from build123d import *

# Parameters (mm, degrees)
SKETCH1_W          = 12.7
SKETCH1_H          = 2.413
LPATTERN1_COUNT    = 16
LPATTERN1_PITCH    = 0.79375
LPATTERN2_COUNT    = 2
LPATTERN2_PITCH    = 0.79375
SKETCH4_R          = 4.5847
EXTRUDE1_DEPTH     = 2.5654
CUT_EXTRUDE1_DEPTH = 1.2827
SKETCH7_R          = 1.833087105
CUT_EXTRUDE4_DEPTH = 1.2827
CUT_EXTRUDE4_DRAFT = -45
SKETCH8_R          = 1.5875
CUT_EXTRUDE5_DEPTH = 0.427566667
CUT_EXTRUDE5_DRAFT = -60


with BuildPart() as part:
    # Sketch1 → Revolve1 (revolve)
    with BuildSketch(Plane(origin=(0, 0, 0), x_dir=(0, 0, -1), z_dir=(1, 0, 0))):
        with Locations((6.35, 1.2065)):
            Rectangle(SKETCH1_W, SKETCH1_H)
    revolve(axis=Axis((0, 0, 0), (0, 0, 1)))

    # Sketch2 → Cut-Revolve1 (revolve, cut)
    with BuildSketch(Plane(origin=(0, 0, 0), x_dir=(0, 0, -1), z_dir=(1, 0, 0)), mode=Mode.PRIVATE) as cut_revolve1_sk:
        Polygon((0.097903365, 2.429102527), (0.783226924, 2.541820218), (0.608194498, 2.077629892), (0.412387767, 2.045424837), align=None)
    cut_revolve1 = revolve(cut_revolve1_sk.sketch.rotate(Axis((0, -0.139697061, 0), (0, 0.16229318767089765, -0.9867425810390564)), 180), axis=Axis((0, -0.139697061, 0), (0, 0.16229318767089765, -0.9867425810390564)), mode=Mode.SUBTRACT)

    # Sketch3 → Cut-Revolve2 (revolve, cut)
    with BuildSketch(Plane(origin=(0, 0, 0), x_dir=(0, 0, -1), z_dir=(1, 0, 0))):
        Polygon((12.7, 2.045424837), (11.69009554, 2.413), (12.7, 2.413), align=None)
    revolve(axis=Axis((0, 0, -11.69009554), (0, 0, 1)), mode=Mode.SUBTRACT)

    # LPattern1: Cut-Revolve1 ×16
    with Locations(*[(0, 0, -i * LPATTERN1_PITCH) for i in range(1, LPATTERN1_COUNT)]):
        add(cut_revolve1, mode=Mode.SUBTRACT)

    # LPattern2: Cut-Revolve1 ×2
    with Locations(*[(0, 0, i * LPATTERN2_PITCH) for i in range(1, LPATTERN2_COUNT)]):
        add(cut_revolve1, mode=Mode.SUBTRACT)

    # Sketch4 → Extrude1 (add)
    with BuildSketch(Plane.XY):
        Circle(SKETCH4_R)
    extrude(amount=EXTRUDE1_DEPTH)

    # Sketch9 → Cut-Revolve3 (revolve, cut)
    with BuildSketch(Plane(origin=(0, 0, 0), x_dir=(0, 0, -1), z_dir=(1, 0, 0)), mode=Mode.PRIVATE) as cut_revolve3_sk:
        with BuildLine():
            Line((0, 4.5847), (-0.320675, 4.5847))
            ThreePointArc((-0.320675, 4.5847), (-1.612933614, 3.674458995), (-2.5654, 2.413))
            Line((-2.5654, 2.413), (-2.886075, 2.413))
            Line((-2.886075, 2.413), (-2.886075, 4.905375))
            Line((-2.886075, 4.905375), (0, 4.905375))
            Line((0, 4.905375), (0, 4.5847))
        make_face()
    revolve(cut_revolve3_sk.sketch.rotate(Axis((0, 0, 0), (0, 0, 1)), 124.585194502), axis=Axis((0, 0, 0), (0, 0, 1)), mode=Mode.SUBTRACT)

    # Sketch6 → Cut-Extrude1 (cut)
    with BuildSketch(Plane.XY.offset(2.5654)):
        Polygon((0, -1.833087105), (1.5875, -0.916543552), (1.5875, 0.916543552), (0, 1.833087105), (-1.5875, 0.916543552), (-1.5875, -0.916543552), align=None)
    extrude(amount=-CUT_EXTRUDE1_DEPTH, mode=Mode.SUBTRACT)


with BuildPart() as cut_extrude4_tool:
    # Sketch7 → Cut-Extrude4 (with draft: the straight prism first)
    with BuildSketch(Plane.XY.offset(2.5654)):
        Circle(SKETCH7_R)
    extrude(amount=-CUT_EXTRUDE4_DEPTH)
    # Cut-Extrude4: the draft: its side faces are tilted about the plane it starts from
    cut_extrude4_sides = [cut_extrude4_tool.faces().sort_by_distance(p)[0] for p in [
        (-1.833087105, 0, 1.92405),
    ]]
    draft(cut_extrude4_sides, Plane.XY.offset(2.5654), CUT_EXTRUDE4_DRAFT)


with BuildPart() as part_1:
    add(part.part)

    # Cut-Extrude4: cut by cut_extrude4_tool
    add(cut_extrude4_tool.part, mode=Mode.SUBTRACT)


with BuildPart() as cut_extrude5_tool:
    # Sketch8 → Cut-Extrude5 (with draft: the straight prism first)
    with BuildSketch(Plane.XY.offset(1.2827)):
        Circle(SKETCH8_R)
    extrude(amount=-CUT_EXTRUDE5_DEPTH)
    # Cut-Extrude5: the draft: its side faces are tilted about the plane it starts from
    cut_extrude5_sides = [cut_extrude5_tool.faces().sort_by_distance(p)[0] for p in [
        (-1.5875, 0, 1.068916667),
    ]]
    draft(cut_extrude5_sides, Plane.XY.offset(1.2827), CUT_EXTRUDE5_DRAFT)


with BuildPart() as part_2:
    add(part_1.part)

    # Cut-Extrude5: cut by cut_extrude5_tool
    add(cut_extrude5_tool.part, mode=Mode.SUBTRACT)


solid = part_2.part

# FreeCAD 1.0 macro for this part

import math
import FreeCAD as App
import Part
import Sketcher
from FreeCAD import Vector
Q = App.Units.Quantity


def faces_at(feature, points):
    """Names of the faces that lie closest to the given points."""
    faces = feature.Shape.Faces
    near = lambda p: min(range(len(faces)), key=lambda i: faces[i].distToShape(Part.Vertex(*p))[0])
    return sorted({f"Face{near(p) + 1}" for p in points})


def add_polygon(sketch, points):
    """Adds a closed chain of lines whose ends are joined by coincident constraints."""
    first, n = sketch.GeometryCount, len(points)
    for a, b in zip(points, points[1:] + points[:1]):
        sketch.addGeometry(Part.LineSegment(App.Vector(*a, 0), App.Vector(*b, 0)), False)
    for i in range(n):
        sketch.addConstraint(Sketcher.Constraint("Coincident", first + i, 2, first + (i + 1) % n, 1))

doc = App.newDocument("Part")
body = doc.addObject("PartDesign::Body", "Body")

# Sketch on YZ plane
sketch1 = body.newObject("Sketcher::SketchObject", "Sketch")
sketch1.AttachmentSupport = (doc.getObject("YZ_Plane"), [""])
sketch1.MapMode = "FlatFace"
add_polygon(sketch1, [(2.4, 0), (0, 0), (0, -12.7), (2.4, -12.7)])  # lines 0-3
sketch1.addConstraint([
    Sketcher.Constraint("Horizontal", 0),
    Sketcher.Constraint("Vertical", 1),
    Sketcher.Constraint("Horizontal", 2),
    Sketcher.Constraint("Vertical", 3),
    Sketcher.Constraint("Coincident", 0, 2, -1, 1),
    Sketcher.Constraint("DistanceY", 1, 2, 1, 1, Q("0.5 in")),
    Sketcher.Constraint("DistanceX", 0, 2, 0, 1, Q("0.095 in")),
])
revolution = body.newObject("PartDesign::Revolution", "Revolution")
revolution.Profile = sketch1
revolution.ReferenceAxis = (sketch1, ["V_Axis"])
revolution.Angle = 360

# Sketch on YZ plane
sketch2 = body.newObject("Sketcher::SketchObject", "Sketch001")
sketch2.AttachmentSupport = (doc.getObject("YZ_Plane"), [""])
sketch2.MapMode = "FlatFace"
add_polygon(sketch2, [(2.54, -0.78), (2.43, -0.1), (2.05, -0.41), (2.08, -0.61)])  # lines 0-3
sketch2.addGeometry(Part.LineSegment(Vector(-0.06, -0.51, 0), Vector(0.06, -1.19, 0)), True)  # axis
sketch2.addConstraint([
    Sketcher.Constraint("Parallel", 0, 2),
    Sketcher.Constraint("Parallel", 2, 4),
    Sketcher.Constraint("Equal", 1, 3),
    Sketcher.Constraint("Equal", 0, 4),
    Sketcher.Constraint("DistanceY", 3, 2, 1, 2, Q("0.0146 in")),
    Sketcher.Constraint("DistanceY", 2, 2, 4, 1, 0.101498),
    Sketcher.Constraint("Distance", 0, 0.694531),
    Sketcher.Constraint("DistanceX", -1, 1, 2, 2, 2.07763),
    Sketcher.Constraint("DistanceX", -1, 1, 3, 2, 2.54182),
    Sketcher.Constraint("DistanceX", 4, 1, -1, 1, 0.056359),
    Sketcher.Constraint("DistanceX", -1, 1, 4, 2, 0.056359),
    Sketcher.Constraint("DistanceY", 4, 2, -1, 1, 1.19202),
])
groove = body.newObject("PartDesign::Groove", "Groove")
groove.Profile = sketch2
groove.ReferenceAxis = (sketch2, ["Axis0"])
groove.Angle = 360

# Sketch on YZ plane
sketch3 = body.newObject("Sketcher::SketchObject", "Sketch002")
sketch3.AttachmentSupport = (doc.getObject("YZ_Plane"), [""])
sketch3.MapMode = "FlatFace"
add_polygon(sketch3, [(2.41, -11.69), (2.05, -12.7), (2.41, -12.7)])  # lines 0-2
sketch3.addConstraint([
    Sketcher.Constraint("Horizontal", 1),
    Sketcher.Constraint("Vertical", 2),
    Sketcher.Constraint("Angle", 0, Q("-110 deg")),
    Sketcher.Constraint("DistanceY", 0, 2, -1, 1, Q("0.5 in")),
    Sketcher.Constraint("DistanceX", -1, 1, 1, 2, Q("0.095 in")),
    Sketcher.Constraint("DistanceX", 1, 1, 1, 2, 0.367575),
])
groove2 = body.newObject("PartDesign::Groove", "Groove001")
groove2.Profile = sketch3
groove2.ReferenceAxis = (sketch3, ["V_Axis"])
groove2.Angle = 360
doc.recompute()

linearpattern = body.newObject("PartDesign::LinearPattern", "LinearPattern")
linearpattern.Originals = [groove]
linearpattern.Direction = (doc.getObject("Z_Axis"), [""])
linearpattern.Mode = "offset"
linearpattern.Offset = Q("0.03125 in")
linearpattern.Occurrences = 16
linearpattern.Reversed = True
body.Tip = linearpattern
doc.recompute()

linearpattern2 = body.newObject("PartDesign::LinearPattern", "LinearPattern001")
linearpattern2.Originals = [groove]
linearpattern2.Direction = (doc.getObject("Z_Axis"), [""])
linearpattern2.Mode = "offset"
linearpattern2.Offset = Q("0.03125 in")
linearpattern2.Occurrences = 2
body.Tip = linearpattern2

# Sketch on XY plane
sketch4 = body.newObject("Sketcher::SketchObject", "Sketch003")
sketch4.AttachmentSupport = (doc.getObject("XY_Plane"), [""])
sketch4.MapMode = "FlatFace"
sketch4.addGeometry(Part.Circle(Vector(0, 0, 0), Vector(0, 0, 1), 4.6), False)
sketch4.addConstraint([
    Sketcher.Constraint("Coincident", 0, 3, -1, 1),
    Sketcher.Constraint("Diameter", 0, Q("0.361 in")),
])
pad1 = body.newObject("PartDesign::Pad", "Pad")
pad1.Profile = sketch4
pad1.Length = Q("0.101 in")

# Sketch on YZ plane
sketch5 = body.newObject("Sketcher::SketchObject", "Sketch004")
sketch5.AttachmentSupport = (doc.getObject("YZ_Plane"), [""])
sketch5.MapMode = "FlatFace"
sketch5.addGeometry([
    Part.LineSegment(Vector(4.58, 0.32, 0), Vector(4.58, 0, 0)),  # 0
    Part.LineSegment(Vector(4.58, 0, 0), Vector(4.91, 0, 0)),  # 1
    Part.LineSegment(Vector(4.91, 0, 0), Vector(4.91, 2.89, 0)),  # 2
    Part.LineSegment(Vector(4.91, 2.89, 0), Vector(2.41, 2.89, 0)),  # 3
    Part.LineSegment(Vector(2.41, 2.89, 0), Vector(2.41, 2.57, 0)),  # 4
    Part.ArcOfCircle(Part.Circle(Vector(0, -1.94, 0), Vector(0, 0, 1), 5.11), math.radians(26), math.radians(62)),  # 5
], False)
sketch5.addConstraint([
    Sketcher.Constraint("Coincident", 0, 2, 1, 1),
    Sketcher.Constraint("Coincident", 1, 2, 2, 1),
    Sketcher.Constraint("Coincident", 2, 2, 3, 1),
    Sketcher.Constraint("Coincident", 3, 2, 4, 1),
    Sketcher.Constraint("Coincident", 4, 2, 5, 2),
    Sketcher.Constraint("Coincident", 5, 1, 0, 1),
    Sketcher.Constraint("Vertical", 0),
    Sketcher.Constraint("Horizontal", 1),
    Sketcher.Constraint("Vertical", 2),
    Sketcher.Constraint("Horizontal", 3),
    Sketcher.Constraint("Vertical", 4),
    Sketcher.Constraint("PointOnObject", 5, 3, -2),
    Sketcher.Constraint("PointOnObject", 0, 2, -1),
    Sketcher.Constraint("Equal", 1, 0),
    Sketcher.Constraint("Equal", 0, 4),
    Sketcher.Constraint("DistanceX", -1, 1, 3, 2, Q("0.095 in")),
    Sketcher.Constraint("DistanceY", -1, 1, 4, 2, Q("0.101 in")),
    Sketcher.Constraint("DistanceX", -1, 1, 0, 2, Q("0.1805 in")),
    Sketcher.Constraint("Radius", 5, 5.112643),
])
groove3 = body.newObject("PartDesign::Groove", "Groove002")
groove3.Profile = sketch5
groove3.ReferenceAxis = (sketch5, ["V_Axis"])
groove3.Angle = 360

# Sketch on XY plane
sketch6 = body.newObject("Sketcher::SketchObject", "Sketch005")
sketch6.AttachmentSupport = (doc.getObject("XY_Plane"), [""])
sketch6.MapMode = "FlatFace"
sketch6.AttachmentOffset = App.Placement(Vector(0, 0, 0.101 * 25.4), App.Rotation())
add_polygon(sketch6, [(0, -1.8), (1.6, -0.9), (1.6, 0.9), (0, 1.8), (-1.6, 0.9), (-1.6, -0.9)])  # lines 0-5
sketch6.addConstraint([
    Sketcher.Constraint("Vertical", 1),
    Sketcher.Constraint("Vertical", 4),
    Sketcher.Constraint("Symmetric", 0, 2, 3, 2, -1, 1),
    Sketcher.Constraint("Symmetric", 2, 2, 5, 2, -1, 1),
    Sketcher.Constraint("PointOnObject", 2, 2, -2),
    Sketcher.Constraint("Parallel", 2, 5),
    Sketcher.Constraint("Horizontal", 1, 2, 3, 2),
    Sketcher.Constraint("Angle", 0, Q("30 deg")),
    Sketcher.Constraint("DistanceX", -1, 1, 0, 2, Q("0.0625 in")),
    Sketcher.Constraint("DistanceY", 1, 1, 1, 2, 1.833087),
])
pocket1 = body.newObject("PartDesign::Pocket", "Pocket")
pocket1.Profile = sketch6
pocket1.Length = Q("0.0505 in")
body2 = doc.addObject("PartDesign::Body", "Body001")

# Sketch on XY plane
sketch7 = body2.newObject("Sketcher::SketchObject", "Sketch006")
sketch7.AttachmentSupport = (doc.getObject("XY_Plane001"), [""])
sketch7.MapMode = "FlatFace"
sketch7.AttachmentOffset = App.Placement(Vector(0, 0, 0.101 * 25.4), App.Rotation())
sketch7.addGeometry(Part.Circle(Vector(0, 0, 0), Vector(0, 0, 1), 1.8), False)
sketch7.addConstraint([
    Sketcher.Constraint("Coincident", 0, 3, -1, 1),
    Sketcher.Constraint("Diameter", 0, 3.666174),
])
pad2 = body2.newObject("PartDesign::Pad", "Pad001")
pad2.Profile = sketch7
pad2.Length = Q("0.0505 in")
pad2.Reversed = True
doc.recompute()

datumplane = body2.newObject("PartDesign::Plane", "DatumPlane")
datumplane.AttachmentSupport = (doc.getObject("XY_Plane001"), [""])
datumplane.MapMode = "FlatFace"
datumplane.AttachmentOffset = App.Placement(Vector(0, 0, 0.101 * 25.4), App.Rotation())
draft = body2.newObject("PartDesign::Draft", "Draft")
draft.Base = (pad2, faces_at(pad2, [(-1.833, 0, 1.924)]))
draft.NeutralPlane = (datumplane, [""])
draft.Angle = 45
draft.Reversed = True
doc.recompute()

boolean = body.newObject("PartDesign::Boolean", "Boolean")
boolean.Type = "Cut"
boolean.addObjects([body2])
body3 = doc.addObject("PartDesign::Body", "Body002")

# Sketch on XY plane
sketch8 = body3.newObject("Sketcher::SketchObject", "Sketch007")
sketch8.AttachmentSupport = (doc.getObject("XY_Plane002"), [""])
sketch8.MapMode = "FlatFace"
sketch8.AttachmentOffset = App.Placement(Vector(0, 0, 0.0505 * 25.4), App.Rotation())
sketch8.addGeometry(Part.Circle(Vector(0, 0, 0), Vector(0, 0, 1), 1.6), False)
sketch8.addConstraint([
    Sketcher.Constraint("Coincident", 0, 3, -1, 1),
    Sketcher.Constraint("Diameter", 0, Q("0.125 in")),
])
pad3 = body3.newObject("PartDesign::Pad", "Pad002")
pad3.Profile = sketch8
pad3.Length = 0.427567
pad3.Reversed = True
doc.recompute()

datumplane2 = body3.newObject("PartDesign::Plane", "DatumPlane001")
datumplane2.AttachmentSupport = (doc.getObject("XY_Plane002"), [""])
datumplane2.MapMode = "FlatFace"
datumplane2.AttachmentOffset = App.Placement(Vector(0, 0, 0.0505 * 25.4), App.Rotation())
draft2 = body3.newObject("PartDesign::Draft", "Draft001")
draft2.Base = (pad3, faces_at(pad3, [(-1.587, 0, 1.069)]))
draft2.NeutralPlane = (datumplane2, [""])
draft2.Angle = 60
draft2.Reversed = True
doc.recompute()

boolean2 = body.newObject("PartDesign::Boolean", "Boolean001")
boolean2.Type = "Cut"
boolean2.addObjects([body3])

doc.recompute()
